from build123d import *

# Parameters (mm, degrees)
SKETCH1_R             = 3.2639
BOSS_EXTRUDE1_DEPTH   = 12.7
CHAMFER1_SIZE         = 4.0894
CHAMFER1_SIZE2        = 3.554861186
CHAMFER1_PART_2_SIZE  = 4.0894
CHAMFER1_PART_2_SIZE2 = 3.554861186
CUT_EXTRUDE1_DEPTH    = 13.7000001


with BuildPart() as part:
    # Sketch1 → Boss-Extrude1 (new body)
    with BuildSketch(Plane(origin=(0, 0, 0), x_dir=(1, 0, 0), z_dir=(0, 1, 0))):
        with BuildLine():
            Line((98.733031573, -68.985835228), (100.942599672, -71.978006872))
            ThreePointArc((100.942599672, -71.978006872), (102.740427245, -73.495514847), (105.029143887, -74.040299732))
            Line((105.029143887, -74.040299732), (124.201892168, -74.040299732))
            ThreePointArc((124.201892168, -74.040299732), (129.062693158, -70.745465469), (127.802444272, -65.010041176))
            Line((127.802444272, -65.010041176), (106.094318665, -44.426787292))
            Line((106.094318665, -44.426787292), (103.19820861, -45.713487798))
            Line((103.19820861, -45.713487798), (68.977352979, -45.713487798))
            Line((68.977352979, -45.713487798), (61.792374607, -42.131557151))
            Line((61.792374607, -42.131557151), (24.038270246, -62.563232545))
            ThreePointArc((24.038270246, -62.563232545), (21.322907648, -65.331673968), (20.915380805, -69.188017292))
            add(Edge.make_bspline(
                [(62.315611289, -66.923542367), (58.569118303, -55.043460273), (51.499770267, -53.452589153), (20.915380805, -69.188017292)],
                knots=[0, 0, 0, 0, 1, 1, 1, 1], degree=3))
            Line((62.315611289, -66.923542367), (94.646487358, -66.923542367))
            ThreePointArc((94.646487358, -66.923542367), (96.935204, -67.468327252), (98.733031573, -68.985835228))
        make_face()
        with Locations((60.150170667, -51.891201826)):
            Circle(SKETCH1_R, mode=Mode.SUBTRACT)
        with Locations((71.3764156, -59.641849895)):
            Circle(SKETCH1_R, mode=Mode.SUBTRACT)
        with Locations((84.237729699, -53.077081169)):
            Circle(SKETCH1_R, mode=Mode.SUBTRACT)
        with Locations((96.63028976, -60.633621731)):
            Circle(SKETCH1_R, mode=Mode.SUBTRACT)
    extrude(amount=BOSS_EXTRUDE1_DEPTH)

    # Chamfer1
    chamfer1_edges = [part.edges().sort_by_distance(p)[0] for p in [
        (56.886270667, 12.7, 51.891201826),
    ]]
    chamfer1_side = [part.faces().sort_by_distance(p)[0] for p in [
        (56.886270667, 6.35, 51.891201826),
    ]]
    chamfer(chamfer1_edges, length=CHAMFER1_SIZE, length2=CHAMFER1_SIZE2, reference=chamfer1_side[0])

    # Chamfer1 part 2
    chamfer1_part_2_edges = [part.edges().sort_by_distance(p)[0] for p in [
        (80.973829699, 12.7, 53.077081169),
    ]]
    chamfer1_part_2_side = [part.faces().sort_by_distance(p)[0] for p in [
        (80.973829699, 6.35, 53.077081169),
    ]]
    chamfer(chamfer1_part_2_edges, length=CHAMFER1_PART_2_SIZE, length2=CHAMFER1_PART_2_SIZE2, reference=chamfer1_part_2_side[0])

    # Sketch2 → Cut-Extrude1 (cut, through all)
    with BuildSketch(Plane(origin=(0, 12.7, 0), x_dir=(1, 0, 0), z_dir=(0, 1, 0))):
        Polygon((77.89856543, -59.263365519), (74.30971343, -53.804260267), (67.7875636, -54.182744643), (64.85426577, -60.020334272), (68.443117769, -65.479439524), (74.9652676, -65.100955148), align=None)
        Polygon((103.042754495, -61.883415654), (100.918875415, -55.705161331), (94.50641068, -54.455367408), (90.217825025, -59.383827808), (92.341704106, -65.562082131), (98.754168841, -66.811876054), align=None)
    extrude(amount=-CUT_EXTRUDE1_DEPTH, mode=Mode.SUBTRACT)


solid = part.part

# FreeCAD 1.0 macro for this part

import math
import FreeCAD as App
import Part
import Sketcher

V = App.Vector
Q = App.Units.Quantity


def edges_at(feature, points):
    """Names of the edges that pass closest to the given points."""
    edges = feature.Shape.Edges
    near = lambda p: min(range(len(edges)), key=lambda i: edges[i].distToShape(Part.Vertex(*p))[0])
    return sorted({f"Edge{near(p) + 1}" for p in points})


def add_polygon(sketch, points):
    """Adds a closed chain of lines whose ends are joined by coincident constraints."""
    first, n = sketch.GeometryCount, len(points)
    for a, b in zip(points, points[1:] + points[:1]):
        sketch.addGeometry(Part.LineSegment(App.Vector(*a, 0), App.Vector(*b, 0)), False)
    for i in range(n):
        sketch.addConstraint(Sketcher.Constraint("Coincident", first + i, 2, first + (i + 1) % n, 1))

doc = App.newDocument("Part")
body = doc.addObject("PartDesign::Body", "Body")

sketch1 = doc.addObject("Sketcher::SketchObject", "Sketch")
body.addObject(sketch1)
sketch1.AttachmentSupport = (doc.XZ_Plane, [""])
sketch1.MapMode = "FlatFace"
sketch1.addGeometry([
    Part.LineSegment(V(98.733032, 68.985835, 0), V(100.9426, 71.978007, 0)),
    Part.ArcOfCircle(Part.Circle(V(105.029144, 68.9603, 0), V(0, 0, 1), 5.08), math.radians(90), math.radians(143.555999)),
    Part.LineSegment(V(105.029144, 74.0403, 0), V(124.201892, 74.0403, 0)),
    Part.ArcOfCircle(Part.Circle(V(124.201892, 68.807363, 0), V(0, 0, 1), 5.232937), math.radians(-46.523602), math.radians(90)),
    Part.LineSegment(V(127.802444, 65.010041, 0), V(106.094319, 44.426787, 0)),
    Part.LineSegment(V(106.094319, 44.426787, 0), V(103.198209, 45.713488, 0)),
    Part.LineSegment(V(103.198209, 45.713488, 0), V(68.977353, 45.713488, 0)),
    Part.LineSegment(V(68.977353, 45.713488, 0), V(61.792375, 42.131557, 0)),
    Part.LineSegment(V(61.792375, 42.131557, 0), V(24.03827, 62.563233, 0)),
    Part.ArcOfCircle(Part.Circle(V(26.65408, 67.844761, 0), V(0, 0, 1), 5.893811), math.radians(166.825966), math.radians(243.651932)),
    Part.BSplineCurve([V(62.315611, 66.923542, 0), V(58.569118, 55.04346, 0), V(51.49977, 53.452589, 0), V(20.915381, 69.188017, 0)], [4, 4], [0, 1], False, 3, [1, 1, 1, 1], False),
    Part.LineSegment(V(62.315611, 66.923542, 0), V(94.646487, 66.923542, 0)),
    Part.ArcOfCircle(Part.Circle(V(94.646487, 72.003542, 0), V(0, 0, 1), 5.08), math.radians(-90), math.radians(-36.444001)),
    Part.Circle(V(71.376416, 59.64185, 0), V(0, 0, 1), 3.2639),
    Part.Circle(V(96.63029, 60.633622, 0), V(0, 0, 1), 3.2639),
    Part.Circle(V(60.150171, 51.891202, 0), V(0, 0, 1), 3.2639),
    Part.Circle(V(84.23773, 53.077081, 0), V(0, 0, 1), 3.2639),
], False)
sketch1.addConstraint([
    Sketcher.Constraint("Block", 10),
    Sketcher.Constraint("Tangent", 0, 2, 1, 2),
    Sketcher.Constraint("Tangent", 1, 1, 2, 1),
    Sketcher.Constraint("Tangent", 2, 2, 3, 2),
    Sketcher.Constraint("Tangent", 3, 1, 4, 1),
    Sketcher.Constraint("Coincident", 4, 2, 5, 1),
    Sketcher.Constraint("Coincident", 5, 2, 6, 1),
    Sketcher.Constraint("Coincident", 6, 2, 7, 1),
    Sketcher.Constraint("Coincident", 7, 2, 8, 1),
    Sketcher.Constraint("Coincident", 8, 2, 9, 2),
    Sketcher.Constraint("Coincident", 9, 1, 10, 2),
    Sketcher.Constraint("Coincident", 10, 1, 11, 1),
    Sketcher.Constraint("Tangent", 11, 2, 12, 1),
    Sketcher.Constraint("Tangent", 12, 2, 0, 1),
    Sketcher.Constraint("Horizontal", 2),
    Sketcher.Constraint("Horizontal", 6),
    Sketcher.Constraint("Horizontal", 11),
    Sketcher.Constraint("Equal", 1, 12),
    Sketcher.Constraint("Equal", 13, 14),
    Sketcher.Constraint("Equal", 14, 15),
    Sketcher.Constraint("Equal", 15, 16),
    Sketcher.Constraint("Radius", 1, Q("0.2 in")),
    Sketcher.Constraint("Diameter", 13, Q("0.257 in")),
    Sketcher.Constraint("Radius", 9, Q("5.893811 mm")),
    Sketcher.Constraint("Radius", 3, Q("5.232937 mm")),
    Sketcher.Constraint("DistanceX", 2, 1, 2, 2, Q("19.172748 mm")),
    Sketcher.Constraint("DistanceY", -1, 1, 1, 3, Q("68.9603 mm")),
    Sketcher.Constraint("DistanceY", -1, 1, 15, 3, Q("51.891202 mm")),
    Sketcher.Constraint("DistanceX", -1, 1, 0, 2, Q("100.9426 mm")),
    Sketcher.Constraint("DistanceY", 9, 3, 3, 3, Q("0.962602 mm")),
    Sketcher.Constraint("DistanceX", 1, 3, 3, 1, Q("22.7733 mm")),
    Sketcher.Constraint("DistanceY", 4, 2, 5, 2, Q("1.286701 mm")),
    Sketcher.Constraint("DistanceX", 8, 2, 15, 3, Q("36.1119 mm")),
    Sketcher.Constraint("Distance", 0, Q("3.719581 mm")),
    Sketcher.Constraint("DistanceX", 6, 2, 6, 1, Q("34.220856 mm")),
    Sketcher.Constraint("DistanceY", -1, 1, 13, 3, Q("59.64185 mm")),
    Sketcher.Constraint("DistanceX", -1, 1, 14, 3, Q("96.63029 mm")),
    Sketcher.Constraint("DistanceY", -1, 1, 14, 3, Q("60.633622 mm")),
    Sketcher.Constraint("DistanceX", -1, 1, 15, 3, Q("60.150171 mm")),
    Sketcher.Constraint("DistanceX", -1, 1, 16, 3, Q("84.23773 mm")),
    Sketcher.Constraint("DistanceY", -1, 1, 16, 3, Q("53.077081 mm")),
    Sketcher.Constraint("DistanceX", -1, 1, 4, 2, Q("106.094319 mm")),
    Sketcher.Constraint("DistanceX", -1, 1, 5, 2, Q("103.198209 mm")),
    Sketcher.Constraint("DistanceX", 13, 3, 12, 3, Q("23.270072 mm")),
    Sketcher.Constraint("DistanceX", 7, 2, 6, 2, Q("7.184978 mm")),
    Sketcher.Constraint("DistanceY", 7, 2, 6, 2, Q("3.581931 mm")),
])
pad1 = doc.addObject("PartDesign::Pad", "Pad")
body.addObject(pad1)
pad1.Profile = sketch1
pad1.Length = Q("0.5 in")
pad1.Reversed = True
doc.recompute()

chamfer = doc.addObject("PartDesign::Chamfer", "Chamfer")
body.addObject(chamfer)
chamfer.Base = (pad1, edges_at(pad1, [(56.886, 12.7, 51.891)]))
chamfer.ChamferType = "Two distances"
chamfer.Size = Q("0.161 in")
chamfer.Size2 = 3.554861
doc.recompute()

chamfer2 = doc.addObject("PartDesign::Chamfer", "Chamfer001")
body.addObject(chamfer2)
chamfer2.Base = (chamfer, edges_at(chamfer, [(80.974, 12.7, 53.077)]))
chamfer2.ChamferType = "Two distances"
chamfer2.Size = Q("0.161 in")
chamfer2.Size2 = 3.554861
chamfer2.FlipDirection = True

sketch2 = doc.addObject("Sketcher::SketchObject", "Sketch001")
body.addObject(sketch2)
sketch2.AttachmentSupport = (doc.XZ_Plane, [""])
sketch2.MapMode = "FlatFace"
sketch2.AttachmentOffset = App.Placement(V(0, 0, -0.5 * 25.4), App.Rotation())
add_polygon(sketch2, [(77.898565, 59.263366), (74.309713, 53.80426), (67.787564, 54.182745), (64.854266, 60.020334), (68.443118, 65.47944), (74.965268, 65.100955)])
add_polygon(sketch2, [(103.042754, 61.883416), (100.918875, 55.705161), (94.506411, 54.455367), (90.217825, 59.383828), (92.341704, 65.562082), (98.754169, 66.811876)])
sketch2.addConstraint([
    Sketcher.Constraint("Parallel", 0, 3),
    Sketcher.Constraint("Parallel", 1, 4),
    Sketcher.Constraint("Parallel", 2, 5),
    Sketcher.Constraint("Parallel", 6, 9),
    Sketcher.Constraint("Parallel", 7, 10),
    Sketcher.Constraint("Parallel", 8, 11),
    Sketcher.Constraint("Equal", 0, 1),
    Sketcher.Constraint("Equal", 1, 2),
    Sketcher.Constraint("Equal", 2, 3),
    Sketcher.Constraint("Equal", 5, 6),
    Sketcher.Constraint("Equal", 6, 7),
    Sketcher.Constraint("Equal", 7, 8),
    Sketcher.Constraint("Equal", 8, 9),
    Sketcher.Constraint("DistanceX", -1, 1, 9, 2, Q("3.6355002 in")),
    Sketcher.Constraint("DistanceX", 2, 2, 4, 2, Q("10.111002 mm")),
    Sketcher.Constraint("DistanceX", 2, 2, 5, 2, Q("13.0443 mm")),
    Sketcher.Constraint("DistanceY", 0, 2, 6, 2, Q("1.900901 mm")),
    Sketcher.Constraint("DistanceY", 7, 2, 5, 2, Q("4.807998 mm")),
    Sketcher.Constraint("DistanceY", -1, 1, 0, 2, Q("53.80426 mm")),
    Sketcher.Constraint("DistanceY", -1, 1, 3, 2, Q("65.47944 mm")),
    Sketcher.Constraint("DistanceX", -1, 1, 7, 2, Q("94.506411 mm")),
    Sketcher.Constraint("DistanceX", -1, 1, 10, 2, Q("98.754169 mm")),
    Sketcher.Constraint("DistanceX", 5, 2, 6, 2, Q("23.02031 mm")),
    Sketcher.Constraint("DistanceY", 7, 2, 8, 2, Q("4.92846 mm")),
])
pocket1 = doc.addObject("PartDesign::Pocket", "Pocket")
body.addObject(pocket1)
pocket1.Profile = sketch2
pocket1.Type = "ThroughAll"
pocket1.Reversed = True

doc.recompute()
